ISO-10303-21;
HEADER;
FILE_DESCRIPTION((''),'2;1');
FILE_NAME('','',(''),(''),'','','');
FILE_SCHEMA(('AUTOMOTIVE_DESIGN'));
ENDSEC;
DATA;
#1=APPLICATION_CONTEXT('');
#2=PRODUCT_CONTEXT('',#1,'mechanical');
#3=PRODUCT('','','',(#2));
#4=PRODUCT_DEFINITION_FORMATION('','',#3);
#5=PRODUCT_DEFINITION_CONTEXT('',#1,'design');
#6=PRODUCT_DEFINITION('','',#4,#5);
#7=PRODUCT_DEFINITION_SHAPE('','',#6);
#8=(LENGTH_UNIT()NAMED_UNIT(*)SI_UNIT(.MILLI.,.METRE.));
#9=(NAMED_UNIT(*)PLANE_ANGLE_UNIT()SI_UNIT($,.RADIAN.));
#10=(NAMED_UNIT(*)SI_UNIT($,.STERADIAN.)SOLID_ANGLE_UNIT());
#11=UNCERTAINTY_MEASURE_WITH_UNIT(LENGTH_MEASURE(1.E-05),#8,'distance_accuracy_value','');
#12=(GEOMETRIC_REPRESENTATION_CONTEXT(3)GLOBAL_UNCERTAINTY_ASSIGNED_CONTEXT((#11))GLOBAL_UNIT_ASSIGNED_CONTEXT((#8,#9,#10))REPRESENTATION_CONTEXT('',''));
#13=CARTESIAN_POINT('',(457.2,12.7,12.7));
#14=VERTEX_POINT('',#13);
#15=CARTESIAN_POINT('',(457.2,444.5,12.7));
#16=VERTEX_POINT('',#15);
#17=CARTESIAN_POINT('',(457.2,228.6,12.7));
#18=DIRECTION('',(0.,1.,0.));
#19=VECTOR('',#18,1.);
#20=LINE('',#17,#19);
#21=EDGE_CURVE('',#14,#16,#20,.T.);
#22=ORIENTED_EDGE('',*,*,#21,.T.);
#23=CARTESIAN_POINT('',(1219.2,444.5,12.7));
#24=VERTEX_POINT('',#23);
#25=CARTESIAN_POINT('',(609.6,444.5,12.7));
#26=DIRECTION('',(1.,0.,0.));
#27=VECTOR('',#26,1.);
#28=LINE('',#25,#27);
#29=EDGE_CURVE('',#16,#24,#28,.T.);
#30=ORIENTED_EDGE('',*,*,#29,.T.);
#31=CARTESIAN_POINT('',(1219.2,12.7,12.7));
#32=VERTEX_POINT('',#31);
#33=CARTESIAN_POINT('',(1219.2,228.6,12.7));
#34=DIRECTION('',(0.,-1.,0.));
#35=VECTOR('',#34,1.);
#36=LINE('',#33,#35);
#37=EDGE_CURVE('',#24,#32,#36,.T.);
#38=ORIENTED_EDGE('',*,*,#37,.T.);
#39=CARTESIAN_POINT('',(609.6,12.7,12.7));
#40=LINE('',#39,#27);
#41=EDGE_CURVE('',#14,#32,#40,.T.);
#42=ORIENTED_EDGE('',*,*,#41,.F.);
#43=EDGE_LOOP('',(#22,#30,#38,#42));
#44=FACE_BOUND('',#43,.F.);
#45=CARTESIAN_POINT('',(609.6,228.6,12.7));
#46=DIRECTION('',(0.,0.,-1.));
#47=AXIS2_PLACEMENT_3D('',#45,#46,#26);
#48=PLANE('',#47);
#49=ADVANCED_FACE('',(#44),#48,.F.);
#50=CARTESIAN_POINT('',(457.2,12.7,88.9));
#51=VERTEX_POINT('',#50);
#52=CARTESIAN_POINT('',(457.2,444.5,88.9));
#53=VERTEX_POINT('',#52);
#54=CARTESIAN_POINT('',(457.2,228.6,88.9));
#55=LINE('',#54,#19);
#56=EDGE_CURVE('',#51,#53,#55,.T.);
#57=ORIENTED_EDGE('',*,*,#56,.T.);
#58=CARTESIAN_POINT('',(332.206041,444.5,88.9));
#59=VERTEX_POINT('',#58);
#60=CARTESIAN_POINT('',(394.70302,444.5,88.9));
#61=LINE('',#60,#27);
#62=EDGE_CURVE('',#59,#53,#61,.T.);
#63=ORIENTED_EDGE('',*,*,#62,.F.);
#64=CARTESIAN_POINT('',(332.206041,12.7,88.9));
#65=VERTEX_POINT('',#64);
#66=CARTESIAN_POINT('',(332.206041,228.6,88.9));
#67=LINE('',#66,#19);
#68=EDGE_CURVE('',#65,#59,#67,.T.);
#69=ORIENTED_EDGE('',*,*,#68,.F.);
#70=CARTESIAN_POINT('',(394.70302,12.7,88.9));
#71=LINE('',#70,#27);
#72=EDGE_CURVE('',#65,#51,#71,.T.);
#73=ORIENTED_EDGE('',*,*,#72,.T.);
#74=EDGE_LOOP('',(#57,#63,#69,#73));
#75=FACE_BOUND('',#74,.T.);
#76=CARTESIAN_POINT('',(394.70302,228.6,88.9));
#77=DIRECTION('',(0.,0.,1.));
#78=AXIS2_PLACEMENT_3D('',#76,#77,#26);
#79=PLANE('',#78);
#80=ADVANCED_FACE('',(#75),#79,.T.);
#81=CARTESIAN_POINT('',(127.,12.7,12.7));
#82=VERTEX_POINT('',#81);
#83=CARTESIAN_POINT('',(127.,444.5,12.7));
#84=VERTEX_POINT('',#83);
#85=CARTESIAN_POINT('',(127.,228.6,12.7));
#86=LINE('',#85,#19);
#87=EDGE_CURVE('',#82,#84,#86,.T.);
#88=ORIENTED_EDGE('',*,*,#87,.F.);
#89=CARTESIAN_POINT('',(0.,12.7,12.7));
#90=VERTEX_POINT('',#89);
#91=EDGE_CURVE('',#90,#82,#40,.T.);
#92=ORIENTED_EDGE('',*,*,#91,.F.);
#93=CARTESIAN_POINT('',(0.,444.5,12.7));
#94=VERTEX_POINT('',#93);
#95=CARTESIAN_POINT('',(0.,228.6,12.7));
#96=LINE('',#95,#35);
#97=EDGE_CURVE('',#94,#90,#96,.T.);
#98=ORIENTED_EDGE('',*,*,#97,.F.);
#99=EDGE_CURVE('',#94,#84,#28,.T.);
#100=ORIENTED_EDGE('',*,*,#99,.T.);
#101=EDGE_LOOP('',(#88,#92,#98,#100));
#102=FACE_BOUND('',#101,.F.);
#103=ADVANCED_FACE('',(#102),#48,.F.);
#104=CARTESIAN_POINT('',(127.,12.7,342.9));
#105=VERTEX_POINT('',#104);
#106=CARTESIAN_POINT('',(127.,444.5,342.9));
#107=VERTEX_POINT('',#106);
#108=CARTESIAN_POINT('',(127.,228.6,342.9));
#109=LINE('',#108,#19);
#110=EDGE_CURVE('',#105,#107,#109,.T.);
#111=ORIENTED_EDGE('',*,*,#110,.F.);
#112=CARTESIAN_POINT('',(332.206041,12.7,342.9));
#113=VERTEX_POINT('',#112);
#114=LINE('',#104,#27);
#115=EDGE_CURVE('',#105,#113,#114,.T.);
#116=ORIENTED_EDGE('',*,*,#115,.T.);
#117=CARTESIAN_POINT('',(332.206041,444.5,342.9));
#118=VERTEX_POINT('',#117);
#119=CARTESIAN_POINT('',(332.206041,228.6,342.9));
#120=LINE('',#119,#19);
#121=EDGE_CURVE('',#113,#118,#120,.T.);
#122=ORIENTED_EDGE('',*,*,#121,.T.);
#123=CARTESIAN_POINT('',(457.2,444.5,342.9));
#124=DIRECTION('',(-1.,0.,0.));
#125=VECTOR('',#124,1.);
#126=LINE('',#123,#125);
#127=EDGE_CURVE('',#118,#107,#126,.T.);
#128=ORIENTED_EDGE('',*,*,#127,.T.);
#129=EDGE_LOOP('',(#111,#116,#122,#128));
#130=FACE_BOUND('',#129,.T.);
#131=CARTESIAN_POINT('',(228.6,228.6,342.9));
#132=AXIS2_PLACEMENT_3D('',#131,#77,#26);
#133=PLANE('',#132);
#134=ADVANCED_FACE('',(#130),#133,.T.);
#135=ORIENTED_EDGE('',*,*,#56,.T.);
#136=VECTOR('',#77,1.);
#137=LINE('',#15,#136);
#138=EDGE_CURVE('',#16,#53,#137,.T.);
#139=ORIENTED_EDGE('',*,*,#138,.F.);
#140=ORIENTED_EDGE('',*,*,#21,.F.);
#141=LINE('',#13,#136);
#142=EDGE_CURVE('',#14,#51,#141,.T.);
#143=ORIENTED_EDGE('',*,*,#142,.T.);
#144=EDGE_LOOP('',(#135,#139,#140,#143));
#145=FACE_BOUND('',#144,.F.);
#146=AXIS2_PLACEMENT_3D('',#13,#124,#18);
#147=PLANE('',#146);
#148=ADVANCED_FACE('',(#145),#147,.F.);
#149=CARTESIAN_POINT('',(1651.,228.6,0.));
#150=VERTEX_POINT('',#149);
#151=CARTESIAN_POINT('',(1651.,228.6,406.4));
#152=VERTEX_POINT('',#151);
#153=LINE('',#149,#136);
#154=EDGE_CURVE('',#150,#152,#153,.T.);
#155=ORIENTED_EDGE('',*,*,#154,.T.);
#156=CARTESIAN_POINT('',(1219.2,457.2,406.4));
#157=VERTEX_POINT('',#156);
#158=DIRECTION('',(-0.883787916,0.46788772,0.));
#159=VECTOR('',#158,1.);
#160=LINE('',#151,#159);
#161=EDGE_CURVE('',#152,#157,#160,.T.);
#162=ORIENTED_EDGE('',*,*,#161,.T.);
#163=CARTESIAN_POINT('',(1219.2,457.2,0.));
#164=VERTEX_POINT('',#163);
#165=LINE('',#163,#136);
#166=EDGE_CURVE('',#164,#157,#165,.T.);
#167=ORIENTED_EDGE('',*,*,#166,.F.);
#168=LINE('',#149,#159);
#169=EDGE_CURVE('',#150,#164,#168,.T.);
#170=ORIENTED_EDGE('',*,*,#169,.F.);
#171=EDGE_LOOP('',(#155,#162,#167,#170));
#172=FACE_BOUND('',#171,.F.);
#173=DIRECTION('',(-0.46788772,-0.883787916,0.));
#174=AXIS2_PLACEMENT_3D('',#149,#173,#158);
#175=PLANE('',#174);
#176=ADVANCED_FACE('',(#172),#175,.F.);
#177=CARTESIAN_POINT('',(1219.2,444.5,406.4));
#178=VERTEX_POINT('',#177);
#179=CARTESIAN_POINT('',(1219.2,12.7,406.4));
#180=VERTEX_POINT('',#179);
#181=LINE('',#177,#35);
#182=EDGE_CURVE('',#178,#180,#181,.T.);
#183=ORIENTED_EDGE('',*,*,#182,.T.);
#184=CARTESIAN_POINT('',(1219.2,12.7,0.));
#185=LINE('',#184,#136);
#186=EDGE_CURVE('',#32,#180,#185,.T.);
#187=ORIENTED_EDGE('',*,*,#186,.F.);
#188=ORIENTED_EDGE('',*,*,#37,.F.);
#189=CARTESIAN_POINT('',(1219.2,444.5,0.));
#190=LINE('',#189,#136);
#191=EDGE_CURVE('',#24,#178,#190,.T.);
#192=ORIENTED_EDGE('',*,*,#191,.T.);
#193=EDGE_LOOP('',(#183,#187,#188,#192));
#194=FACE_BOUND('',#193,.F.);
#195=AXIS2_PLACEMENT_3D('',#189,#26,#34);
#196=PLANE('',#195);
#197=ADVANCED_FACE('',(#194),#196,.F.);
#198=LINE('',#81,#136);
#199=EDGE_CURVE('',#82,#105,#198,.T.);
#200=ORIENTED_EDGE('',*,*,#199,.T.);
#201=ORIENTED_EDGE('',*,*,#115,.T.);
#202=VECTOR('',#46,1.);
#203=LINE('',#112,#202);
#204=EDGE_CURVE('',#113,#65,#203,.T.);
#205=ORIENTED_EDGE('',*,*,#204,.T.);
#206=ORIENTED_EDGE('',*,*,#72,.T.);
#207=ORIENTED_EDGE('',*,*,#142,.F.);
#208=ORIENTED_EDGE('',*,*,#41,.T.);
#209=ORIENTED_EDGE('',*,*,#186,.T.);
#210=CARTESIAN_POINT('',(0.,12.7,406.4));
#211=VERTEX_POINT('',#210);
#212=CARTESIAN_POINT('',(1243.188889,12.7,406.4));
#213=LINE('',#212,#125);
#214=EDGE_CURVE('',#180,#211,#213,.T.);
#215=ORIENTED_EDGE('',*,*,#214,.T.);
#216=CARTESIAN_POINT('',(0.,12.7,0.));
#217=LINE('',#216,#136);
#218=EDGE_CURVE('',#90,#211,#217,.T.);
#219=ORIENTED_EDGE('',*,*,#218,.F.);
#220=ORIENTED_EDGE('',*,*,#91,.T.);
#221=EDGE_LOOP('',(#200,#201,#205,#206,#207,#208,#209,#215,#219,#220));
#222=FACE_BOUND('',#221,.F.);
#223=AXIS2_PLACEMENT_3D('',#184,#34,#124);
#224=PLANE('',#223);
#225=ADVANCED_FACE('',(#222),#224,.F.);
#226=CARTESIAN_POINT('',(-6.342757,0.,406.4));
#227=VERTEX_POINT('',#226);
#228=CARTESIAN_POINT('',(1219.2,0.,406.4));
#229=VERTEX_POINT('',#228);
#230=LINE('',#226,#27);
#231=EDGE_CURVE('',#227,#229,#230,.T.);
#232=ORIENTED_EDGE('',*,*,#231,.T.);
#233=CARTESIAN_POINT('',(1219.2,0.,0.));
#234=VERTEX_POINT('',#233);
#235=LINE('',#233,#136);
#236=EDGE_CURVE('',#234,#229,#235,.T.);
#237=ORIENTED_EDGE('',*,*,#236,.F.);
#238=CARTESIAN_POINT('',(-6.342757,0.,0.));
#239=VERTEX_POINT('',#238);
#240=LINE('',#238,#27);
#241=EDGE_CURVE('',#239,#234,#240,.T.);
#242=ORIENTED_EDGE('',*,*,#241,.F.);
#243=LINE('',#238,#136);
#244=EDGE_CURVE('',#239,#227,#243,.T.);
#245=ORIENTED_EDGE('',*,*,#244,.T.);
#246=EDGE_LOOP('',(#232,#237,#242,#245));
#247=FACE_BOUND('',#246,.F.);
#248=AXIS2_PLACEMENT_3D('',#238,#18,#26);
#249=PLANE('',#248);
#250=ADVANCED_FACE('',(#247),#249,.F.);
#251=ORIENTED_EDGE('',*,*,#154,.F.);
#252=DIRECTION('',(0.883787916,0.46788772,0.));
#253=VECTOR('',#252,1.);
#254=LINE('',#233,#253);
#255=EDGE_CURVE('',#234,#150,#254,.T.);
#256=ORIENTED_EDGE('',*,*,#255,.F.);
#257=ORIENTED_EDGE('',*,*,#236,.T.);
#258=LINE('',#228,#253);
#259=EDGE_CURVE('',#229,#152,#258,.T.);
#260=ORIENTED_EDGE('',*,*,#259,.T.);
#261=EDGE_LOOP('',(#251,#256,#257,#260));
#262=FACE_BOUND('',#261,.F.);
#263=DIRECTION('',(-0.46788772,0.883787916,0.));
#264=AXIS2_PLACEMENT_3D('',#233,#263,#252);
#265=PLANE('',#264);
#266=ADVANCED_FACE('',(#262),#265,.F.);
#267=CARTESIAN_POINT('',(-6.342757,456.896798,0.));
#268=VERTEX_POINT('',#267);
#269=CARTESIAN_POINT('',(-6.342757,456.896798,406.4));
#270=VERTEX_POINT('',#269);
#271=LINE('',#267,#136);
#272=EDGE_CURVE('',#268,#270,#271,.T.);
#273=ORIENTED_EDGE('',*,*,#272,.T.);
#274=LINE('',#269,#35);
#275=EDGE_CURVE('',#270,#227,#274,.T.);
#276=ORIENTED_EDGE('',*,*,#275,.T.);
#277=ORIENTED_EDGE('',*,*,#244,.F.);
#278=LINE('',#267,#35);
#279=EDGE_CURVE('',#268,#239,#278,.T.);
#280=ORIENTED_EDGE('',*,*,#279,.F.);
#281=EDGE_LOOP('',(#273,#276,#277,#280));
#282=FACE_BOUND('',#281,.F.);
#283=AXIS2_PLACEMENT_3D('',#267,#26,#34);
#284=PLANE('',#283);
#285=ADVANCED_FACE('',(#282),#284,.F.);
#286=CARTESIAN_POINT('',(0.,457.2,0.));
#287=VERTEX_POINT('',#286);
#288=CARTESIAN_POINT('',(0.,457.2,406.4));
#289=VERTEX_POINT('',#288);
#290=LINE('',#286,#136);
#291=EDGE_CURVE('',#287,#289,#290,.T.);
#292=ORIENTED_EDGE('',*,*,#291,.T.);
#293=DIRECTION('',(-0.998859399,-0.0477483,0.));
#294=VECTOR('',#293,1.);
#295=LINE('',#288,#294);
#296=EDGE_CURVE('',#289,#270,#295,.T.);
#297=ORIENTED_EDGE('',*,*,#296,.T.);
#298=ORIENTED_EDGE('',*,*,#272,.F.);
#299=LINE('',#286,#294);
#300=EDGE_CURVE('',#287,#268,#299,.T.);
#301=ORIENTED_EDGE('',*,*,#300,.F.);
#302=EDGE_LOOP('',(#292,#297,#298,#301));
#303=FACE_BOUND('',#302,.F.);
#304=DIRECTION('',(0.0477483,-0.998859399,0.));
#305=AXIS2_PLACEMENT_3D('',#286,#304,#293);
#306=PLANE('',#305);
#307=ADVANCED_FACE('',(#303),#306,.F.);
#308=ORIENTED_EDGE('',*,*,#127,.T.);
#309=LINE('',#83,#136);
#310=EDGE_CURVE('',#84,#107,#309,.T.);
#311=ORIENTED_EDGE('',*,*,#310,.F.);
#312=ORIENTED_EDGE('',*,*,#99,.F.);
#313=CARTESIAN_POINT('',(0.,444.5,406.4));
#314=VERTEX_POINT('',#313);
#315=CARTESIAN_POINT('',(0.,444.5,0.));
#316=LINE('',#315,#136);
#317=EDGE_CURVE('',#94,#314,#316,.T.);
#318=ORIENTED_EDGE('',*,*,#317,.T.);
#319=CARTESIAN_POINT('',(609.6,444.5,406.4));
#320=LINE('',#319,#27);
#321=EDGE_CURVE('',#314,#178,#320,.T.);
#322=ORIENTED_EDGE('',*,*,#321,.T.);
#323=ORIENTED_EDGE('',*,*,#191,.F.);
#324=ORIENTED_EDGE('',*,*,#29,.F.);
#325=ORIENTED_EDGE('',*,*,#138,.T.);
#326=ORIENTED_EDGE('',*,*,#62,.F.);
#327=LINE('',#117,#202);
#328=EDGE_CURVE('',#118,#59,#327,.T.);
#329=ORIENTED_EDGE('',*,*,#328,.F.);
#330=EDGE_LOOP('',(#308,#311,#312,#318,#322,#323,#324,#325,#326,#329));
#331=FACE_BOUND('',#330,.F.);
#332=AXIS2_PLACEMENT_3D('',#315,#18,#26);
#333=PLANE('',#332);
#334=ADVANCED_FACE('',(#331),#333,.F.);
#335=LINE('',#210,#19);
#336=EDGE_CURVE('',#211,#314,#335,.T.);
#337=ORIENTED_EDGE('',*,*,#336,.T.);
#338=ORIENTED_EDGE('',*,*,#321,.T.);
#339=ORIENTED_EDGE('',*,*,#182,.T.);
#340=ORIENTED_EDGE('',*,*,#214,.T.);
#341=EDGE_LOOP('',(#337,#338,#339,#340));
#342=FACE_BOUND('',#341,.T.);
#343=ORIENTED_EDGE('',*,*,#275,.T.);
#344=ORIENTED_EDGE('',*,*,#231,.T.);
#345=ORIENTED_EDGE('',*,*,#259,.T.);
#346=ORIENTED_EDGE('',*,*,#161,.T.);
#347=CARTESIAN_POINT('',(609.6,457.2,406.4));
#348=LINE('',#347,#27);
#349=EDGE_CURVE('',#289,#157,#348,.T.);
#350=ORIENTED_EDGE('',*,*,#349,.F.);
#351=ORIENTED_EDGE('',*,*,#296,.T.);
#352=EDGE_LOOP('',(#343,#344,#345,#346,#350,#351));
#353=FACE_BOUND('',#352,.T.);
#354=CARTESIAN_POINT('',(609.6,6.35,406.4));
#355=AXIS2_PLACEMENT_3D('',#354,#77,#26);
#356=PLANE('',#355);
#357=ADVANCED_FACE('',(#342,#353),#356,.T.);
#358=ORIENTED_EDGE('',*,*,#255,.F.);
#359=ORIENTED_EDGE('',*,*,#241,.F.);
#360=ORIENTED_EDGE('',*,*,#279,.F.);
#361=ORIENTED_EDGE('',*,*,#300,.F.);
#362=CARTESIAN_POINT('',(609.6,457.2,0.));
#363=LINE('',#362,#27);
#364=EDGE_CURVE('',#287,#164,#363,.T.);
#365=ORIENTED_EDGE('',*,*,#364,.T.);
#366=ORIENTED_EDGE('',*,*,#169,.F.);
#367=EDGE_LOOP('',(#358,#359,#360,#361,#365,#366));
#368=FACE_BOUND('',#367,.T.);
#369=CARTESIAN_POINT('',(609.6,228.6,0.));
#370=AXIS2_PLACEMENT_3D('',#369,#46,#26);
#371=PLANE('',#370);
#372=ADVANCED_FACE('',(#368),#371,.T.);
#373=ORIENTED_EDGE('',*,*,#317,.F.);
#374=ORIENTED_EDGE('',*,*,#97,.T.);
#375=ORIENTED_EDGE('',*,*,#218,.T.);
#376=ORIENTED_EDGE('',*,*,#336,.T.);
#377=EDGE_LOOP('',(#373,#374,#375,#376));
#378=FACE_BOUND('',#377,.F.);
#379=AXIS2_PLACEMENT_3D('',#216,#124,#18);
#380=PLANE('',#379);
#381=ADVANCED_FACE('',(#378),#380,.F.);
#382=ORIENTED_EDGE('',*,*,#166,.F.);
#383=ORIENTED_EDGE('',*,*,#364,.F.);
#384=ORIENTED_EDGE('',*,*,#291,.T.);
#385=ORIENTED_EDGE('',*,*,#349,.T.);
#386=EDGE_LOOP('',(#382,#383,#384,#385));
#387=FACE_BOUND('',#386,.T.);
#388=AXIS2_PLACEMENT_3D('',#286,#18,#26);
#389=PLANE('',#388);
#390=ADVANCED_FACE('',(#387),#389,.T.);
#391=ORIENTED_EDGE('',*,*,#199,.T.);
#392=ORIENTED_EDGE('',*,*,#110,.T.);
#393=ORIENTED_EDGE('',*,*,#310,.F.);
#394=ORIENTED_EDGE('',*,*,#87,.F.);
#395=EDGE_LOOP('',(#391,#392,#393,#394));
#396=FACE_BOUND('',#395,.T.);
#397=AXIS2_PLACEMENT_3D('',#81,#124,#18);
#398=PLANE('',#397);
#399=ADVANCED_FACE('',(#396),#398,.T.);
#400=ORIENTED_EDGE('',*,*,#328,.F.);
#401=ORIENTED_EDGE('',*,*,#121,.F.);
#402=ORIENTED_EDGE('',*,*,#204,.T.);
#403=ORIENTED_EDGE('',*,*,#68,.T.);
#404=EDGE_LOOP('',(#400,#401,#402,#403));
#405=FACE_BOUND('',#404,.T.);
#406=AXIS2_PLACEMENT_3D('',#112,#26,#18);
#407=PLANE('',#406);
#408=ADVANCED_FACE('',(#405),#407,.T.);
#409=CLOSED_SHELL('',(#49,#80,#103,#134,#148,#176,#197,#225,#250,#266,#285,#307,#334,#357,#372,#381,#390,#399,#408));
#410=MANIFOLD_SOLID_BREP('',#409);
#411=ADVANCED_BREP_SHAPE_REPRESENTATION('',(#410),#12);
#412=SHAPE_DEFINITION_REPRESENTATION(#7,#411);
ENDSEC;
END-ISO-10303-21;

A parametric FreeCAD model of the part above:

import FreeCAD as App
import Part
import Sketcher
Q = App.Units.Quantity


def add_polygon(sketch, points):
    """Adds a closed chain of lines whose ends are joined by coincident constraints."""
    first, n = sketch.GeometryCount, len(points)
    for a, b in zip(points, points[1:] + points[:1]):
        sketch.addGeometry(Part.LineSegment(App.Vector(*a, 0), App.Vector(*b, 0)), False)
    for i in range(n):
        sketch.addConstraint(Sketcher.Constraint("Coincident", first + i, 2, first + (i + 1) % n, 1))

doc = App.newDocument("Part")
body = doc.addObject("PartDesign::Body", "Body")

sketch1 = body.newObject("Sketcher::SketchObject", "Sketch")
sketch1.AttachmentSupport = (doc.getObject("XY_Plane"), [""])
sketch1.MapMode = "FlatFace"
add_polygon(sketch1, [(1651, 229), (1219, 457), (0, 457), (-6, 457), (-6, 0), (1219, 0)])
add_polygon(sketch1, [(0, 444), (1219, 444), (1219, 13), (0, 13)])
sketch1.addConstraint([
    Sketcher.Constraint("Horizontal", 1),
    Sketcher.Constraint("Vertical", 3),
    Sketcher.Constraint("Horizontal", 4),
    Sketcher.Constraint("Horizontal", 6),
    Sketcher.Constraint("Vertical", 7),
    Sketcher.Constraint("Horizontal", 8),
    Sketcher.Constraint("Vertical", 9),
    Sketcher.Constraint("PointOnObject", 1, 2, -2),
    Sketcher.Constraint("PointOnObject", 3, 2, -1),
    Sketcher.Constraint("PointOnObject", 8, 2, -2),
    Sketcher.Constraint("Vertical", 0, 2, 4, 2),
    Sketcher.Constraint("Vertical", 4, 2, 6, 2),
    Sketcher.Constraint("Equal", 0, 5),
    Sketcher.Constraint("DistanceX", 1, 2, 1, 1, Q("48 in")),
    Sketcher.Constraint("DistanceY", 7, 2, 7, 1, Q("17 in")),
    Sketcher.Constraint("DistanceY", -1, 1, 0, 2, Q("18 in")),
    Sketcher.Constraint("DistanceX", -1, 1, 5, 2, Q("65 in")),
    Sketcher.Constraint("DistanceY", -1, 1, 6, 2, Q("17.5 in")),
    Sketcher.Constraint("Distance", 2, Q("0.25 in")),
    Sketcher.Constraint("DistanceY", 3, 2, 3, 1, Q("456.896798 mm")),
])
pad1 = body.newObject("PartDesign::Pad", "Pad")
pad1.Profile = sketch1
pad1.Length = Q("16 in")

sketch2 = body.newObject("Sketcher::SketchObject", "Sketch001")
sketch2.AttachmentSupport = (doc.getObject("XY_Plane"), [""])
sketch2.MapMode = "FlatFace"
add_polygon(sketch2, [(0, 13), (0, 444), (1219, 444), (1219, 13)])
sketch2.addConstraint([
    Sketcher.Constraint("Vertical", 0),
    Sketcher.Constraint("Horizontal", 1),
    Sketcher.Constraint("Vertical", 2),
    Sketcher.Constraint("Horizontal", 3),
    Sketcher.Constraint("PointOnObject", 0, 2, -2),
    Sketcher.Constraint("DistanceX", 1, 1, 1, 2, Q("48 in")),
    Sketcher.Constraint("DistanceY", 0, 1, 0, 2, Q("17 in")),
    Sketcher.Constraint("DistanceY", -1, 1, 0, 2, Q("17.5 in")),
])
pad2 = body.newObject("PartDesign::Pad", "Pad001")
pad2.Profile = sketch2
pad2.Length = Q("0.5 in")

sketch3 = body.newObject("Sketcher::SketchObject", "Sketch002")
sketch3.AttachmentSupport = (doc.getObject("XY_Plane"), [""])
sketch3.MapMode = "FlatFace"
sketch3.AttachmentOffset = App.Placement(App.Vector(0, 0, 0.5 * 25.4), App.Rotation())
add_polygon(sketch3, [(127, 444), (127, 13), (457, 13), (457, 444)])
sketch3.addConstraint([
    Sketcher.Constraint("Vertical", 0),
    Sketcher.Constraint("Horizontal", 1),
    Sketcher.Constraint("Vertical", 2),
    Sketcher.Constraint("Horizontal", 3),
    Sketcher.Constraint("DistanceX", 1, 1, 1, 2, Q("13 in")),
    Sketcher.Constraint("DistanceY", 0, 2, 0, 1, Q("17 in")),
    Sketcher.Constraint("DistanceX", -1, 1, 0, 2, Q("5 in")),
    Sketcher.Constraint("DistanceY", -1, 1, 0, 2, Q("0.5 in")),
])
pad3 = body.newObject("PartDesign::Pad", "Pad002")
pad3.Profile = sketch3
pad3.Length = Q("13 in")

sketch4 = body.newObject("Sketcher::SketchObject", "Sketch003")
sketch4.AttachmentSupport = (doc.getObject("XY_Plane"), [""])
sketch4.MapMode = "FlatFace"
sketch4.AttachmentOffset = App.Placement(App.Vector(0, 0, 13.5 * 25.4), App.Rotation())
add_polygon(sketch4, [(332, 444), (332, 13), (457, 13), (457, 444)])
sketch4.addConstraint([
    Sketcher.Constraint("Vertical", 0),
    Sketcher.Constraint("Horizontal", 1),
    Sketcher.Constraint("Vertical", 2),
    Sketcher.Constraint("Horizontal", 3),
    Sketcher.Constraint("DistanceY", 0, 2, 0, 1, Q("17 in")),
    Sketcher.Constraint("DistanceX", -1, 1, 1, 2, Q("18 in")),
    Sketcher.Constraint("DistanceY", -1, 1, 0, 2, Q("0.5 in")),
    Sketcher.Constraint("DistanceX", 1, 1, 1, 2, Q("124.993959 mm")),
])
pocket1 = body.newObject("PartDesign::Pocket", "Pocket")
pocket1.Profile = sketch4
pocket1.Length = Q("10 in")

doc.recompute()
